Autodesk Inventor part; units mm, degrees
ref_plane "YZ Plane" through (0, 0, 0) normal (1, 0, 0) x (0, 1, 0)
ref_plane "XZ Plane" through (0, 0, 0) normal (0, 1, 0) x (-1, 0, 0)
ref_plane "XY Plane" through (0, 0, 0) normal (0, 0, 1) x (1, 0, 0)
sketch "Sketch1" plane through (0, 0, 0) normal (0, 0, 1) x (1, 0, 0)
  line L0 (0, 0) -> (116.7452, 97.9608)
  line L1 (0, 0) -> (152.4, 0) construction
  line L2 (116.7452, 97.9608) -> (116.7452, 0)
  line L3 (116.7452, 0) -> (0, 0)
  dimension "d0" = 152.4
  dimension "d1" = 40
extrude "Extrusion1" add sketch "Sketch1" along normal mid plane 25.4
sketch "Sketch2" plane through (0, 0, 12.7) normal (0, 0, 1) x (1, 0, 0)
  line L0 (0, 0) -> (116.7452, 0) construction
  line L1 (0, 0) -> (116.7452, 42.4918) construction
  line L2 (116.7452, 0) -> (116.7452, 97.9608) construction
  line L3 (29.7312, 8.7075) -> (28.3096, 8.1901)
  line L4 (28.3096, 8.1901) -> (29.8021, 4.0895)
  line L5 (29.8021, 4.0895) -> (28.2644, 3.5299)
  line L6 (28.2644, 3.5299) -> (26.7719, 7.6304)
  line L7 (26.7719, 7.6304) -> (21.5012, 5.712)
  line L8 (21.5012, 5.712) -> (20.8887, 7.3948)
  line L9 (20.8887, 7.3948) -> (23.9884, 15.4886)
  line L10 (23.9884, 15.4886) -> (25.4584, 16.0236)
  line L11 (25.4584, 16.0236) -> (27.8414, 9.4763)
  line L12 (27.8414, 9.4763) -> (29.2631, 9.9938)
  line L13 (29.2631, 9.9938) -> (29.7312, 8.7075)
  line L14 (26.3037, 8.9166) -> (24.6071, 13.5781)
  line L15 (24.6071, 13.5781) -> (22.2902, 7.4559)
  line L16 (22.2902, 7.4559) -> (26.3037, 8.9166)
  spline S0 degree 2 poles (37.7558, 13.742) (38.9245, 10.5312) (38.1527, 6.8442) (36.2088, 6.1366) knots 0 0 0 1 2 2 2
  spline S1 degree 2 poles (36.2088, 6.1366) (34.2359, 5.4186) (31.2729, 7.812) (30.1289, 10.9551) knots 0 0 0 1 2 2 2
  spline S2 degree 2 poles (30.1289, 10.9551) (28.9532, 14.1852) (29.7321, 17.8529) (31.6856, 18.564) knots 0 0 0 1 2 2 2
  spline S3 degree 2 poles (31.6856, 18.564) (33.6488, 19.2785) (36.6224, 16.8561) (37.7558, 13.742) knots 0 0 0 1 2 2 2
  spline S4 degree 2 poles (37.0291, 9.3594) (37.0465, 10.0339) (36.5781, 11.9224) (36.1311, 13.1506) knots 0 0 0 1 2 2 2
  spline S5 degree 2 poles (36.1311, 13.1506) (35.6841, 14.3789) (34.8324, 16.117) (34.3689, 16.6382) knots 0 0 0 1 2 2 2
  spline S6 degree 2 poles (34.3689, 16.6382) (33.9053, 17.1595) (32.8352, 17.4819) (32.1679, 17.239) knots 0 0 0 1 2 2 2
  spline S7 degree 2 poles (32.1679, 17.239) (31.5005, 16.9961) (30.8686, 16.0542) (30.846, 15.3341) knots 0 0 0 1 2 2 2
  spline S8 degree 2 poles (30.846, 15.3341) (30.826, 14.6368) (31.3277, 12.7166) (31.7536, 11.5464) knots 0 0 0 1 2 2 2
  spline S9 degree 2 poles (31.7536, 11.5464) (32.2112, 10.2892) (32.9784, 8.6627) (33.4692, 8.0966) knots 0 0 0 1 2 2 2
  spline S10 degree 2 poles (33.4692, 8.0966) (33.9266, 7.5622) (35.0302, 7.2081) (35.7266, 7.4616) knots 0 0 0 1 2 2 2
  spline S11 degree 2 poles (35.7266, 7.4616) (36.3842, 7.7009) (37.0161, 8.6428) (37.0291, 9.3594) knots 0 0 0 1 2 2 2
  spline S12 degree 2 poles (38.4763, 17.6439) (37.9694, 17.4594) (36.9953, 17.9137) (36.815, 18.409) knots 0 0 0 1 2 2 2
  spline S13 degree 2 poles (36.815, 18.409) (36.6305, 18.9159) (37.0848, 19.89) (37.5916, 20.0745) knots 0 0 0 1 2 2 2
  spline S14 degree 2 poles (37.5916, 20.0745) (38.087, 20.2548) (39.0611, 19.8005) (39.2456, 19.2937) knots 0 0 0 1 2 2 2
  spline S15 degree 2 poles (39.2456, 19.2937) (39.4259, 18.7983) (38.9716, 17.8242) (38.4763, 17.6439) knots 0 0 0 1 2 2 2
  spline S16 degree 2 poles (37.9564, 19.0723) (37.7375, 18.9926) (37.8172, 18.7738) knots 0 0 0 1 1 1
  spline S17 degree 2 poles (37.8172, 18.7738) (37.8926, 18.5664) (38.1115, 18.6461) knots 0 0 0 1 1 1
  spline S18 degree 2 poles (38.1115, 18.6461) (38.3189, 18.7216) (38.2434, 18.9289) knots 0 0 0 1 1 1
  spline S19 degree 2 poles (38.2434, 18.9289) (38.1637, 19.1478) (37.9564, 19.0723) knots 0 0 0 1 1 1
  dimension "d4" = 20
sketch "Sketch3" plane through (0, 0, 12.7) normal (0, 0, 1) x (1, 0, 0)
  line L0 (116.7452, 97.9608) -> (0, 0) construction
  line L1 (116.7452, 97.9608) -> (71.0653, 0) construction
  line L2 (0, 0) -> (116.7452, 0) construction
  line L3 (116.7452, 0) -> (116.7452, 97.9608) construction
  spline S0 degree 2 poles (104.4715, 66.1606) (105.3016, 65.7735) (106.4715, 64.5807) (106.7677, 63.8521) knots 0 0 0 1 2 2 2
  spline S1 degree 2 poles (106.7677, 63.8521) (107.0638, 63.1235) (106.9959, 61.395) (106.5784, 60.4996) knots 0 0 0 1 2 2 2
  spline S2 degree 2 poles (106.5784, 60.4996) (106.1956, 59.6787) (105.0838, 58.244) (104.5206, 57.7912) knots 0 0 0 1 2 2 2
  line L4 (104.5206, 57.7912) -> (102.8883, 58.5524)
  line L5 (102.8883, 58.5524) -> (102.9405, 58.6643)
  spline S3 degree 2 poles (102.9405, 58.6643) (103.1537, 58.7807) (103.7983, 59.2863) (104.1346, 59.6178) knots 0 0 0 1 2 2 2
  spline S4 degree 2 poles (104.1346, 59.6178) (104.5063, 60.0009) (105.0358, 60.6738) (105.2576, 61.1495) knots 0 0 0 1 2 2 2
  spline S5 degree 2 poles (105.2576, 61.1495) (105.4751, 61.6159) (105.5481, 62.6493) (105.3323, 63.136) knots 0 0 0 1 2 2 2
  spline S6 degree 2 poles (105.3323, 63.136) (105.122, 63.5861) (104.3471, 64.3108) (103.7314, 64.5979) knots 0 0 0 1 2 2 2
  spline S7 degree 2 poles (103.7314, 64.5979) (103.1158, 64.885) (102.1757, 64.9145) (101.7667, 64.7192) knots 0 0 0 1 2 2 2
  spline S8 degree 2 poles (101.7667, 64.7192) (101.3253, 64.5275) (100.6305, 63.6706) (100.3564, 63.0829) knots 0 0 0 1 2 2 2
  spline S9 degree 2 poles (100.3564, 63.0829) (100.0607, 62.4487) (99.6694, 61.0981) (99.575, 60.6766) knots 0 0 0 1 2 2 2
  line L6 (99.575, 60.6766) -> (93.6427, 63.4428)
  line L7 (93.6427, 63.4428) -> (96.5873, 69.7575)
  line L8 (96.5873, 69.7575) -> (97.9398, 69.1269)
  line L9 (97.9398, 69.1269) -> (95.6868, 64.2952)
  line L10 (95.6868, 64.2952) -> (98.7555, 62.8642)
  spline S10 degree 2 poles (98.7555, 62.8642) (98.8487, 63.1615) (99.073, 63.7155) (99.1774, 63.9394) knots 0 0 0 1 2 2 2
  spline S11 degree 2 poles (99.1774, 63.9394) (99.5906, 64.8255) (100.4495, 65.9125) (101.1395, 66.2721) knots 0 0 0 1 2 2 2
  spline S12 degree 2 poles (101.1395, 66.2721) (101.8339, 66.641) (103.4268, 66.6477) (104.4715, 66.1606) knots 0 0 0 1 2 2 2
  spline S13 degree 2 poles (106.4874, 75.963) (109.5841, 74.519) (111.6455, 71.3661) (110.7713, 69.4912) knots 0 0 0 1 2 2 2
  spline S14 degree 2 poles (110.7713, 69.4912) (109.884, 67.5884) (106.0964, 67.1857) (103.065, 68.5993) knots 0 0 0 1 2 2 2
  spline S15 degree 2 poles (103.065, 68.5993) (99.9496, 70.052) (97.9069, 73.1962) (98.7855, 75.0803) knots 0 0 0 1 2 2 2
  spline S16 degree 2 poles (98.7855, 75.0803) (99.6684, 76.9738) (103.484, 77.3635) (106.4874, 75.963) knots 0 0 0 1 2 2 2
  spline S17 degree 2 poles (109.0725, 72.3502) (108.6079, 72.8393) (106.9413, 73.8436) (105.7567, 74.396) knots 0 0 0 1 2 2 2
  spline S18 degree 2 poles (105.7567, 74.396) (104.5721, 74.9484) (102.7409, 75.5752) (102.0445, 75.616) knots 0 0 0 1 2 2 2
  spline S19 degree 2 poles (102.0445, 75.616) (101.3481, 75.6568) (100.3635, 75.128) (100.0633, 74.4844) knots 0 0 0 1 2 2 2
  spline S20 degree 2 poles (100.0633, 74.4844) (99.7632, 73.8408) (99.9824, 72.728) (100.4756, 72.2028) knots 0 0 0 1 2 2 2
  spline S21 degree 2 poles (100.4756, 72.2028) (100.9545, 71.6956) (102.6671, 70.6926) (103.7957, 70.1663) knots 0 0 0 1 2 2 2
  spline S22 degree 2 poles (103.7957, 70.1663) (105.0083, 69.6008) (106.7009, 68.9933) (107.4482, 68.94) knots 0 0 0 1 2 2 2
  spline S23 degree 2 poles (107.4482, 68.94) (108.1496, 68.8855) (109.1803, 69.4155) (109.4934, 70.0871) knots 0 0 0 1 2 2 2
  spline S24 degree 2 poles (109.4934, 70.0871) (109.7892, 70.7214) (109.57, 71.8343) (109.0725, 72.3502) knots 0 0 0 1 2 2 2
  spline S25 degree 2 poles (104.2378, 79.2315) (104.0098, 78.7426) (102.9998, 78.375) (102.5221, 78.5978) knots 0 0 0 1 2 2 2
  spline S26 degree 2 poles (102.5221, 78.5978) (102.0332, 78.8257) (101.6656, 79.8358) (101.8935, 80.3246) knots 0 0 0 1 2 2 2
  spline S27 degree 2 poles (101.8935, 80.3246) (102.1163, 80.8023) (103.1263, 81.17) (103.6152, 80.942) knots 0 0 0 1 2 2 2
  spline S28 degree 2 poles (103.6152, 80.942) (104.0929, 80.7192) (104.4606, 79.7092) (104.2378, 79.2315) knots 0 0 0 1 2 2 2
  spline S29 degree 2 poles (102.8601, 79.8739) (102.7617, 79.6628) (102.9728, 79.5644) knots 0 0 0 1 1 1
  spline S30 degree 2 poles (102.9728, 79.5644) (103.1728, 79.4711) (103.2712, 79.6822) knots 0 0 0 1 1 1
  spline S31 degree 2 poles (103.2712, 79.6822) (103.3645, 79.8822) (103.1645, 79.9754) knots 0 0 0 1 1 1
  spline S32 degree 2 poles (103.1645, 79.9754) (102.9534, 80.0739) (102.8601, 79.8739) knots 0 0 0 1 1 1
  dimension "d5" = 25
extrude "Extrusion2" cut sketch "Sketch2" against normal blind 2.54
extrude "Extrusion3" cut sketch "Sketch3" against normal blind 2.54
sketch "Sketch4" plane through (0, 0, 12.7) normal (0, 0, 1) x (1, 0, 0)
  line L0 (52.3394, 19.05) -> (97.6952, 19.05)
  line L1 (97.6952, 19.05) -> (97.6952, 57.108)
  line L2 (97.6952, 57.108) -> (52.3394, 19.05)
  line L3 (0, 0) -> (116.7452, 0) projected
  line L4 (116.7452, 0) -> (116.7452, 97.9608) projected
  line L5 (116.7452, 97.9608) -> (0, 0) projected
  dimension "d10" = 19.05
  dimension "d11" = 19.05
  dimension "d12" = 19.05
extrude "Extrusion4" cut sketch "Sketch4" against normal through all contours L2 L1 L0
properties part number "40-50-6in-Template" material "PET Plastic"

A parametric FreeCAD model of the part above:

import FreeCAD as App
import Part
import Sketcher
Q = App.Units.Quantity

doc = App.newDocument("Part")
body = doc.addObject("PartDesign::Body", "Body")

# Sketch on XY plane
sketch1 = body.newObject("Sketcher::SketchObject", "Sketch")
sketch1.AttachmentSupport = (doc.getObject("XY_Plane"), [""])
sketch1.MapMode = "FlatFace"
sketch1.addGeometry([
    Part.LineSegment(App.Vector(117, 98, 0), App.Vector(0, 0, 0)),
    Part.LineSegment(App.Vector(0, 0, 0), App.Vector(117, 0, 0)),
    Part.LineSegment(App.Vector(117, 0, 0), App.Vector(117, 98, 0)),
], False)
sketch1.addConstraint([
    Sketcher.Constraint("Coincident", 0, 2, 1, 1),
    Sketcher.Constraint("Coincident", 1, 2, 2, 1),
    Sketcher.Constraint("Coincident", 2, 2, 0, 1),
    Sketcher.Constraint("Horizontal", 1),
    Sketcher.Constraint("Vertical", 2),
    Sketcher.Constraint("Coincident", 0, 2, -1, 1),
    Sketcher.Constraint("Distance", 0, Q("6 in")),
    Sketcher.Constraint("Angle", 0, Q("-140 deg")),
])
pad1 = body.newObject("PartDesign::Pad", "Pad")
pad1.Profile = sketch1
pad1.Length = Q("1 in")
pad1.Midplane = True

# Sketch on XY plane
sketch2 = body.newObject("Sketcher::SketchObject", "Sketch001")
sketch2.AttachmentSupport = (doc.getObject("XY_Plane"), [""])
sketch2.MapMode = "FlatFace"
sketch2.AttachmentOffset = App.Placement(App.Vector(0, 0, 0.5 * 25.4), App.Rotation())
sketch2.addGeometry([
    Part.LineSegment(App.Vector(28.3096, 8.1901, 0), App.Vector(29.7312, 8.7075, 0)),  # 0
    Part.LineSegment(App.Vector(29.7312, 8.7075, 0), App.Vector(29.2631, 9.9938, 0)),  # 1
    Part.LineSegment(App.Vector(29.2631, 9.9938, 0), App.Vector(27.8414, 9.4763, 0)),  # 2
    Part.LineSegment(App.Vector(27.8414, 9.4763, 0), App.Vector(25.4584, 16.0236, 0)),  # 3
    Part.LineSegment(App.Vector(25.4584, 16.0236, 0), App.Vector(23.9884, 15.4886, 0)),  # 4
    Part.LineSegment(App.Vector(23.9884, 15.4886, 0), App.Vector(20.8887, 7.3948, 0)),  # 5
    Part.LineSegment(App.Vector(20.8887, 7.3948, 0), App.Vector(21.5012, 5.712, 0)),  # 6
    Part.LineSegment(App.Vector(21.5012, 5.712, 0), App.Vector(26.7719, 7.6304, 0)),  # 7
    Part.LineSegment(App.Vector(26.7719, 7.6304, 0), App.Vector(28.2644, 3.5299, 0)),  # 8
    Part.LineSegment(App.Vector(28.2644, 3.5299, 0), App.Vector(29.8021, 4.0895, 0)),  # 9
    Part.LineSegment(App.Vector(29.8021, 4.0895, 0), App.Vector(28.3096, 8.1901, 0)),  # 10
    Part.LineSegment(App.Vector(24.6071, 13.5781, 0), App.Vector(26.3037, 8.9166, 0)),  # 11
    Part.LineSegment(App.Vector(26.3037, 8.9166, 0), App.Vector(22.2902, 7.4559, 0)),  # 12
    Part.LineSegment(App.Vector(22.2902, 7.4559, 0), App.Vector(24.6071, 13.5781, 0)),  # 13
    Part.BSplineCurve([App.Vector(37.7558, 13.742, 0), App.Vector(38.9245, 10.5312, 0), App.Vector(38.1527, 6.8442, 0), App.Vector(36.2088, 6.1366, 0)], [3, 1, 3], [0, 1, 2], False, 2, [1, 1, 1, 1], False),  # 14
    Part.BSplineCurve([App.Vector(31.6856, 18.564, 0), App.Vector(33.6488, 19.2785, 0), App.Vector(36.6224, 16.8561, 0), App.Vector(37.7558, 13.742, 0)], [3, 1, 3], [0, 1, 2], False, 2, [1, 1, 1, 1], False),  # 15
    Part.BSplineCurve([App.Vector(30.1289, 10.9551, 0), App.Vector(28.9532, 14.1852, 0), App.Vector(29.7321, 17.8529, 0), App.Vector(31.6856, 18.564, 0)], [3, 1, 3], [0, 1, 2], False, 2, [1, 1, 1, 1], False),  # 16
    Part.BSplineCurve([App.Vector(36.2088, 6.1366, 0), App.Vector(34.2359, 5.4186, 0), App.Vector(31.2729, 7.812, 0), App.Vector(30.1289, 10.9551, 0)], [3, 1, 3], [0, 1, 2], False, 2, [1, 1, 1, 1], False),  # 17
    Part.BSplineCurve([App.Vector(37.0291, 9.3594, 0), App.Vector(37.0465, 10.0339, 0), App.Vector(36.5781, 11.9224, 0), App.Vector(36.1311, 13.1506, 0)], [3, 1, 3], [0, 1, 2], False, 2, [1, 1, 1, 1], False),  # 18
    Part.BSplineCurve([App.Vector(35.7266, 7.4616, 0), App.Vector(36.3842, 7.7009, 0), App.Vector(37.0161, 8.6428, 0), App.Vector(37.0291, 9.3594, 0)], [3, 1, 3], [0, 1, 2], False, 2, [1, 1, 1, 1], False),  # 19
    Part.BSplineCurve([App.Vector(33.4692, 8.0966, 0), App.Vector(33.9266, 7.5622, 0), App.Vector(35.0302, 7.2081, 0), App.Vector(35.7266, 7.4616, 0)], [3, 1, 3], [0, 1, 2], False, 2, [1, 1, 1, 1], False),  # 20
    Part.BSplineCurve([App.Vector(31.7536, 11.5464, 0), App.Vector(32.2112, 10.2892, 0), App.Vector(32.9784, 8.6627, 0), App.Vector(33.4692, 8.0966, 0)], [3, 1, 3], [0, 1, 2], False, 2, [1, 1, 1, 1], False),  # 21
    Part.BSplineCurve([App.Vector(30.846, 15.3341, 0), App.Vector(30.826, 14.6368, 0), App.Vector(31.3277, 12.7166, 0), App.Vector(31.7536, 11.5464, 0)], [3, 1, 3], [0, 1, 2], False, 2, [1, 1, 1, 1], False),  # 22
    Part.BSplineCurve([App.Vector(32.1679, 17.239, 0), App.Vector(31.5005, 16.9961, 0), App.Vector(30.8686, 16.0542, 0), App.Vector(30.846, 15.3341, 0)], [3, 1, 3], [0, 1, 2], False, 2, [1, 1, 1, 1], False),  # 23
    Part.BSplineCurve([App.Vector(34.3689, 16.6382, 0), App.Vector(33.9053, 17.1595, 0), App.Vector(32.8352, 17.4819, 0), App.Vector(32.1679, 17.239, 0)], [3, 1, 3], [0, 1, 2], False, 2, [1, 1, 1, 1], False),  # 24
    Part.BSplineCurve([App.Vector(36.1311, 13.1506, 0), App.Vector(35.6841, 14.3789, 0), App.Vector(34.8324, 16.117, 0), App.Vector(34.3689, 16.6382, 0)], [3, 1, 3], [0, 1, 2], False, 2, [1, 1, 1, 1], False),  # 25
    Part.BSplineCurve([App.Vector(38.4763, 17.6439, 0), App.Vector(37.9694, 17.4594, 0), App.Vector(36.9953, 17.9137, 0), App.Vector(36.815, 18.409, 0)], [3, 1, 3], [0, 1, 2], False, 2, [1, 1, 1, 1], False),  # 26
    Part.BSplineCurve([App.Vector(39.2456, 19.2937, 0), App.Vector(39.4259, 18.7983, 0), App.Vector(38.9716, 17.8242, 0), App.Vector(38.4763, 17.6439, 0)], [3, 1, 3], [0, 1, 2], False, 2, [1, 1, 1, 1], False),  # 27
    Part.BSplineCurve([App.Vector(37.5916, 20.0745, 0), App.Vector(38.087, 20.2548, 0), App.Vector(39.0611, 19.8005, 0), App.Vector(39.2456, 19.2937, 0)], [3, 1, 3], [0, 1, 2], False, 2, [1, 1, 1, 1], False),  # 28
    Part.BSplineCurve([App.Vector(36.815, 18.409, 0), App.Vector(36.6305, 18.9159, 0), App.Vector(37.0848, 19.89, 0), App.Vector(37.5916, 20.0745, 0)], [3, 1, 3], [0, 1, 2], False, 2, [1, 1, 1, 1], False),  # 29
    Part.BSplineCurve([App.Vector(37.9564, 19.0723, 0), App.Vector(37.7375, 18.9926, 0), App.Vector(37.8172, 18.7738, 0)], [3, 3], [0, 1], False, 2, [1, 1, 1], False),  # 30
    Part.BSplineCurve([App.Vector(38.2434, 18.9289, 0), App.Vector(38.1637, 19.1478, 0), App.Vector(37.9564, 19.0723, 0)], [3, 3], [0, 1], False, 2, [1, 1, 1], False),  # 31
    Part.BSplineCurve([App.Vector(38.1115, 18.6461, 0), App.Vector(38.3189, 18.7216, 0), App.Vector(38.2434, 18.9289, 0)], [3, 3], [0, 1], False, 2, [1, 1, 1], False),  # 32
    Part.BSplineCurve([App.Vector(37.8172, 18.7738, 0), App.Vector(37.8926, 18.5664, 0), App.Vector(38.1115, 18.6461, 0)], [3, 3], [0, 1], False, 2, [1, 1, 1], False),  # 33
], False)
sketch2.addConstraint([
    Sketcher.Constraint("Block", 14),
    Sketcher.Constraint("Block", 15),
    Sketcher.Constraint("Block", 16),
    Sketcher.Constraint("Block", 17),
    Sketcher.Constraint("Block", 18),
    Sketcher.Constraint("Block", 19),
    Sketcher.Constraint("Block", 20),
    Sketcher.Constraint("Block", 21),
    Sketcher.Constraint("Block", 22),
    Sketcher.Constraint("Block", 23),
    Sketcher.Constraint("Block", 24),
    Sketcher.Constraint("Block", 25),
    Sketcher.Constraint("Block", 26),
    Sketcher.Constraint("Block", 27),
    Sketcher.Constraint("Block", 28),
    Sketcher.Constraint("Block", 29),
    Sketcher.Constraint("Block", 30),
    Sketcher.Constraint("Block", 31),
    Sketcher.Constraint("Block", 32),
    Sketcher.Constraint("Block", 33),
    Sketcher.Constraint("Coincident", 0, 2, 1, 1),
    Sketcher.Constraint("Coincident", 1, 2, 2, 1),
    Sketcher.Constraint("Coincident", 2, 2, 3, 1),
    Sketcher.Constraint("Coincident", 3, 2, 4, 1),
    Sketcher.Constraint("Coincident", 4, 2, 5, 1),
    Sketcher.Constraint("Coincident", 5, 2, 6, 1),
    Sketcher.Constraint("Coincident", 6, 2, 7, 1),
    Sketcher.Constraint("Coincident", 7, 2, 8, 1),
    Sketcher.Constraint("Coincident", 8, 2, 9, 1),
    Sketcher.Constraint("Coincident", 9, 2, 10, 1),
    Sketcher.Constraint("Coincident", 10, 2, 0, 1),
    Sketcher.Constraint("Coincident", 11, 2, 12, 1),
    Sketcher.Constraint("Coincident", 12, 2, 13, 1),
    Sketcher.Constraint("Coincident", 13, 2, 11, 1),
    Sketcher.Constraint("Perpendicular", 0, 1),
    Sketcher.Constraint("Perpendicular", 1, 2),
    Sketcher.Constraint("Perpendicular", 2, 3),
    Sketcher.Constraint("Perpendicular", 3, 4),
    Sketcher.Constraint("Perpendicular", 4, 6),
    Sketcher.Constraint("Perpendicular", 6, 7),
    Sketcher.Constraint("Perpendicular", 7, 8),
    Sketcher.Constraint("Perpendicular", 8, 9),
    Sketcher.Constraint("Perpendicular", 9, 10),
    Sketcher.Constraint("Parallel", 10, 11),
    Sketcher.Constraint("Perpendicular", 11, 12),
    Sketcher.Constraint("Equal", 0, 2),
    Sketcher.Constraint("Equal", 8, 10),
    Sketcher.Constraint("Angle", 7, Q("20.0002 deg")),
    Sketcher.Constraint("DistanceX", -1, 1, 7, 2, Q("1.054 in")),
    Sketcher.Constraint("DistanceY", -1, 1, 9, 2, Q("0.161 in")),
    Sketcher.Constraint("DistanceY", 10, 2, 1, 2, Q("0.071 in")),
    Sketcher.Constraint("DistanceX", 12, 2, 11, 2, Q("0.158 in")),
    Sketcher.Constraint("Distance", 1, Q("0.0539 in")),
    Sketcher.Constraint("Distance", 3, Q("0.2743 in")),
    Sketcher.Constraint("Distance", 6, Q("0.0705 in")),
    Sketcher.Constraint("Distance", 8, Q("0.1718 in")),
    Sketcher.Constraint("Distance", 11, Q("0.1953 in")),
    Sketcher.Constraint("DistanceX", -1, 1, 1, 2, Q("1.1521 in")),
    Sketcher.Constraint("DistanceX", -1, 1, 5, 2, Q("0.8224 in")),
    Sketcher.Constraint("DistanceX", 4, 2, 2, 2, Q("0.1517 in")),
    Sketcher.Constraint("DistanceY", 10, 2, 11, 2, Q("0.0286 in")),
    Sketcher.Constraint("DistanceX", 11, 2, 1, 2, Q("0.1165 in")),
])
pocket1 = body.newObject("PartDesign::Pocket", "Pocket")
pocket1.Profile = sketch2
pocket1.Length = Q("0.1 in")

# Sketch on XY plane
sketch3 = body.newObject("Sketcher::SketchObject", "Sketch002")
sketch3.AttachmentSupport = (doc.getObject("XY_Plane"), [""])
sketch3.MapMode = "FlatFace"
sketch3.AttachmentOffset = App.Placement(App.Vector(0, 0, 0.5 * 25.4), App.Rotation())
sketch3.addGeometry([
    Part.BSplineCurve([App.Vector(104.4715, 66.1606, 0), App.Vector(105.3016, 65.7735, 0), App.Vector(106.4715, 64.5807, 0), App.Vector(106.7677, 63.8521, 0)], [3, 1, 3], [0, 1, 2], False, 2, [1, 1, 1, 1], False),  # 0
    Part.BSplineCurve([App.Vector(101.1395, 66.2721, 0), App.Vector(101.8339, 66.641, 0), App.Vector(103.4268, 66.6477, 0), App.Vector(104.4715, 66.1606, 0)], [3, 1, 3], [0, 1, 2], False, 2, [1, 1, 1, 1], False),  # 1
    Part.BSplineCurve([App.Vector(99.1774, 63.9394, 0), App.Vector(99.5906, 64.8255, 0), App.Vector(100.4495, 65.9125, 0), App.Vector(101.1395, 66.2721, 0)], [3, 1, 3], [0, 1, 2], False, 2, [1, 1, 1, 1], False),  # 2
    Part.BSplineCurve([App.Vector(98.7555, 62.8642, 0), App.Vector(98.8487, 63.1615, 0), App.Vector(99.073, 63.7155, 0), App.Vector(99.1774, 63.9394, 0)], [3, 1, 3], [0, 1, 2], False, 2, [1, 1, 1, 1], False),  # 3
    Part.LineSegment(App.Vector(98.7555, 62.8642, 0), App.Vector(95.6868, 64.2952, 0)),  # 4
    Part.LineSegment(App.Vector(95.6868, 64.2952, 0), App.Vector(97.9398, 69.1269, 0)),  # 5
    Part.LineSegment(App.Vector(97.9398, 69.1269, 0), App.Vector(96.5873, 69.7575, 0)),  # 6
    Part.LineSegment(App.Vector(96.5873, 69.7575, 0), App.Vector(93.6427, 63.4428, 0)),  # 7
    Part.LineSegment(App.Vector(93.6427, 63.4428, 0), App.Vector(99.575, 60.6766, 0)),  # 8
    Part.BSplineCurve([App.Vector(100.3564, 63.0829, 0), App.Vector(100.0607, 62.4487, 0), App.Vector(99.6694, 61.0981, 0), App.Vector(99.575, 60.6766, 0)], [3, 1, 3], [0, 1, 2], False, 2, [1, 1, 1, 1], False),  # 9
    Part.BSplineCurve([App.Vector(101.7667, 64.7192, 0), App.Vector(101.3253, 64.5275, 0), App.Vector(100.6305, 63.6706, 0), App.Vector(100.3564, 63.0829, 0)], [3, 1, 3], [0, 1, 2], False, 2, [1, 1, 1, 1], False),  # 10
    Part.BSplineCurve([App.Vector(103.7314, 64.5979, 0), App.Vector(103.1158, 64.885, 0), App.Vector(102.1757, 64.9145, 0), App.Vector(101.7667, 64.7192, 0)], [3, 1, 3], [0, 1, 2], False, 2, [1, 1, 1, 1], False),  # 11
    Part.BSplineCurve([App.Vector(105.3323, 63.136, 0), App.Vector(105.122, 63.5861, 0), App.Vector(104.3471, 64.3108, 0), App.Vector(103.7314, 64.5979, 0)], [3, 1, 3], [0, 1, 2], False, 2, [1, 1, 1, 1], False),  # 12
    Part.BSplineCurve([App.Vector(105.2576, 61.1495, 0), App.Vector(105.4751, 61.6159, 0), App.Vector(105.5481, 62.6493, 0), App.Vector(105.3323, 63.136, 0)], [3, 1, 3], [0, 1, 2], False, 2, [1, 1, 1, 1], False),  # 13
    Part.BSplineCurve([App.Vector(104.1346, 59.6178, 0), App.Vector(104.5063, 60.0009, 0), App.Vector(105.0358, 60.6738, 0), App.Vector(105.2576, 61.1495, 0)], [3, 1, 3], [0, 1, 2], False, 2, [1, 1, 1, 1], False),  # 14
    Part.BSplineCurve([App.Vector(102.9405, 58.6643, 0), App.Vector(103.1537, 58.7807, 0), App.Vector(103.7983, 59.2863, 0), App.Vector(104.1346, 59.6178, 0)], [3, 1, 3], [0, 1, 2], False, 2, [1, 1, 1, 1], False),  # 15
    Part.LineSegment(App.Vector(102.9405, 58.6643, 0), App.Vector(102.8883, 58.5524, 0)),  # 16
    Part.LineSegment(App.Vector(102.8883, 58.5524, 0), App.Vector(104.5206, 57.7912, 0)),  # 17
    Part.BSplineCurve([App.Vector(106.5784, 60.4996, 0), App.Vector(106.1956, 59.6787, 0), App.Vector(105.0838, 58.244, 0), App.Vector(104.5206, 57.7912, 0)], [3, 1, 3], [0, 1, 2], False, 2, [1, 1, 1, 1], False),  # 18
    Part.BSplineCurve([App.Vector(106.7677, 63.8521, 0), App.Vector(107.0638, 63.1235, 0), App.Vector(106.9959, 61.395, 0), App.Vector(106.5784, 60.4996, 0)], [3, 1, 3], [0, 1, 2], False, 2, [1, 1, 1, 1], False),  # 19
    Part.BSplineCurve([App.Vector(106.4874, 75.963, 0), App.Vector(109.5841, 74.519, 0), App.Vector(111.6455, 71.3661, 0), App.Vector(110.7713, 69.4912, 0)], [3, 1, 3], [0, 1, 2], False, 2, [1, 1, 1, 1], False),  # 20
    Part.BSplineCurve([App.Vector(98.7855, 75.0803, 0), App.Vector(99.6684, 76.9738, 0), App.Vector(103.484, 77.3635, 0), App.Vector(106.4874, 75.963, 0)], [3, 1, 3], [0, 1, 2], False, 2, [1, 1, 1, 1], False),  # 21
    Part.BSplineCurve([App.Vector(103.065, 68.5993, 0), App.Vector(99.9496, 70.052, 0), App.Vector(97.9069, 73.1962, 0), App.Vector(98.7855, 75.0803, 0)], [3, 1, 3], [0, 1, 2], False, 2, [1, 1, 1, 1], False),  # 22
    Part.BSplineCurve([App.Vector(110.7713, 69.4912, 0), App.Vector(109.884, 67.5884, 0), App.Vector(106.0964, 67.1857, 0), App.Vector(103.065, 68.5993, 0)], [3, 1, 3], [0, 1, 2], False, 2, [1, 1, 1, 1], False),  # 23
    Part.BSplineCurve([App.Vector(109.0725, 72.3502, 0), App.Vector(108.6079, 72.8393, 0), App.Vector(106.9413, 73.8436, 0), App.Vector(105.7567, 74.396, 0)], [3, 1, 3], [0, 1, 2], False, 2, [1, 1, 1, 1], False),  # 24
    Part.BSplineCurve([App.Vector(109.4934, 70.0871, 0), App.Vector(109.7892, 70.7214, 0), App.Vector(109.57, 71.8343, 0), App.Vector(109.0725, 72.3502, 0)], [3, 1, 3], [0, 1, 2], False, 2, [1, 1, 1, 1], False),  # 25
    Part.BSplineCurve([App.Vector(107.4482, 68.94, 0), App.Vector(108.1496, 68.8855, 0), App.Vector(109.1803, 69.4155, 0), App.Vector(109.4934, 70.0871, 0)], [3, 1, 3], [0, 1, 2], False, 2, [1, 1, 1, 1], False),  # 26
    Part.BSplineCurve([App.Vector(103.7957, 70.1663, 0), App.Vector(105.0083, 69.6008, 0), App.Vector(106.7009, 68.9933, 0), App.Vector(107.4482, 68.94, 0)], [3, 1, 3], [0, 1, 2], False, 2, [1, 1, 1, 1], False),  # 27
    Part.BSplineCurve([App.Vector(100.4756, 72.2028, 0), App.Vector(100.9545, 71.6956, 0), App.Vector(102.6671, 70.6926, 0), App.Vector(103.7957, 70.1663, 0)], [3, 1, 3], [0, 1, 2], False, 2, [1, 1, 1, 1], False),  # 28
    Part.BSplineCurve([App.Vector(100.0633, 74.4844, 0), App.Vector(99.7632, 73.8408, 0), App.Vector(99.9824, 72.728, 0), App.Vector(100.4756, 72.2028, 0)], [3, 1, 3], [0, 1, 2], False, 2, [1, 1, 1, 1], False),  # 29
    Part.BSplineCurve([App.Vector(102.0445, 75.616, 0), App.Vector(101.3481, 75.6568, 0), App.Vector(100.3635, 75.128, 0), App.Vector(100.0633, 74.4844, 0)], [3, 1, 3], [0, 1, 2], False, 2, [1, 1, 1, 1], False),  # 30
    Part.BSplineCurve([App.Vector(105.7567, 74.396, 0), App.Vector(104.5721, 74.9484, 0), App.Vector(102.7409, 75.5752, 0), App.Vector(102.0445, 75.616, 0)], [3, 1, 3], [0, 1, 2], False, 2, [1, 1, 1, 1], False),  # 31
    Part.BSplineCurve([App.Vector(104.2378, 79.2315, 0), App.Vector(104.0098, 78.7426, 0), App.Vector(102.9998, 78.375, 0), App.Vector(102.5221, 78.5978, 0)], [3, 1, 3], [0, 1, 2], False, 2, [1, 1, 1, 1], False),  # 32
    Part.BSplineCurve([App.Vector(103.6152, 80.942, 0), App.Vector(104.0929, 80.7192, 0), App.Vector(104.4606, 79.7092, 0), App.Vector(104.2378, 79.2315, 0)], [3, 1, 3], [0, 1, 2], False, 2, [1, 1, 1, 1], False),  # 33
    Part.BSplineCurve([App.Vector(101.8935, 80.3246, 0), App.Vector(102.1163, 80.8023, 0), App.Vector(103.1263, 81.17, 0), App.Vector(103.6152, 80.942, 0)], [3, 1, 3], [0, 1, 2], False, 2, [1, 1, 1, 1], False),  # 34
    Part.BSplineCurve([App.Vector(102.5221, 78.5978, 0), App.Vector(102.0332, 78.8257, 0), App.Vector(101.6656, 79.8358, 0), App.Vector(101.8935, 80.3246, 0)], [3, 1, 3], [0, 1, 2], False, 2, [1, 1, 1, 1], False),  # 35
    Part.BSplineCurve([App.Vector(102.8601, 79.8739, 0), App.Vector(102.7617, 79.6628, 0), App.Vector(102.9728, 79.5644, 0)], [3, 3], [0, 1], False, 2, [1, 1, 1], False),  # 36
    Part.BSplineCurve([App.Vector(103.1645, 79.9754, 0), App.Vector(102.9534, 80.0739, 0), App.Vector(102.8601, 79.8739, 0)], [3, 3], [0, 1], False, 2, [1, 1, 1], False),  # 37
    Part.BSplineCurve([App.Vector(103.2712, 79.6822, 0), App.Vector(103.3645, 79.8822, 0), App.Vector(103.1645, 79.9754, 0)], [3, 3], [0, 1], False, 2, [1, 1, 1], False),  # 38
    Part.BSplineCurve([App.Vector(102.9728, 79.5644, 0), App.Vector(103.1728, 79.4711, 0), App.Vector(103.2712, 79.6822, 0)], [3, 3], [0, 1], False, 2, [1, 1, 1], False),  # 39
], False)
sketch3.addConstraint([
    Sketcher.Constraint("Block", 0),
    Sketcher.Constraint("Block", 1),
    Sketcher.Constraint("Block", 2),
    Sketcher.Constraint("Block", 3),
    Sketcher.Constraint("Block", 9),
    Sketcher.Constraint("Block", 10),
    Sketcher.Constraint("Block", 11),
    Sketcher.Constraint("Block", 12),
    Sketcher.Constraint("Block", 13),
    Sketcher.Constraint("Block", 14),
    Sketcher.Constraint("Block", 15),
    Sketcher.Constraint("Block", 18),
    Sketcher.Constraint("Block", 19),
    Sketcher.Constraint("Block", 20),
    Sketcher.Constraint("Block", 21),
    Sketcher.Constraint("Block", 22),
    Sketcher.Constraint("Block", 23),
    Sketcher.Constraint("Block", 24),
    Sketcher.Constraint("Block", 25),
    Sketcher.Constraint("Block", 26),
    Sketcher.Constraint("Block", 27),
    Sketcher.Constraint("Block", 28),
    Sketcher.Constraint("Block", 29),
    Sketcher.Constraint("Block", 30),
    Sketcher.Constraint("Block", 31),
    Sketcher.Constraint("Block", 32),
    Sketcher.Constraint("Block", 33),
    Sketcher.Constraint("Block", 34),
    Sketcher.Constraint("Block", 35),
    Sketcher.Constraint("Block", 36),
    Sketcher.Constraint("Block", 37),
    Sketcher.Constraint("Block", 38),
    Sketcher.Constraint("Block", 39),
    Sketcher.Constraint("Coincident", 3, 1, 4, 1),
    Sketcher.Constraint("Coincident", 4, 2, 5, 1),
    Sketcher.Constraint("Coincident", 5, 2, 6, 1),
    Sketcher.Constraint("Coincident", 6, 2, 7, 1),
    Sketcher.Constraint("Coincident", 7, 2, 8, 1),
    Sketcher.Constraint("Coincident", 8, 2, 9, 2),
    Sketcher.Constraint("Coincident", 15, 1, 16, 1),
    Sketcher.Constraint("Coincident", 16, 2, 17, 1),
    Sketcher.Constraint("Coincident", 17, 2, 18, 2),
    Sketcher.Constraint("DistanceX", 7, 2, 16, 2, Q("0.364 in")),
    Sketcher.Constraint("Distance", 4, Q("0.1333 in")),
    Sketcher.Constraint("Distance", 5, Q("0.2099 in")),
    Sketcher.Constraint("Distance", 7, Q("0.2743 in")),
    Sketcher.Constraint("Distance", 8, Q("0.2577 in")),
    Sketcher.Constraint("Distance", 17, Q("0.0709 in")),
    Sketcher.Constraint("DistanceX", -1, 1, 4, 2, Q("3.7672 in")),
    Sketcher.Constraint("DistanceX", -1, 1, 5, 2, Q("3.8559 in")),
    Sketcher.Constraint("DistanceY", 7, 2, 6, 2, Q("0.2486 in")),
    Sketcher.Constraint("DistanceY", 8, 2, 7, 2, Q("0.1089 in")),
])
pocket2 = body.newObject("PartDesign::Pocket", "Pocket001")
pocket2.Profile = sketch3
pocket2.Length = Q("0.1 in")

# Sketch on XY plane
sketch4 = body.newObject("Sketcher::SketchObject", "Sketch003")
sketch4.AttachmentSupport = (doc.getObject("XY_Plane"), [""])
sketch4.MapMode = "FlatFace"
sketch4.AttachmentOffset = App.Placement(App.Vector(0, 0, 0.5 * 25.4), App.Rotation())
sketch4.addGeometry([
    Part.LineSegment(App.Vector(98, 57, 0), App.Vector(52, 19, 0)),
    Part.LineSegment(App.Vector(52, 19, 0), App.Vector(98, 19, 0)),
    Part.LineSegment(App.Vector(98, 19, 0), App.Vector(98, 57, 0)),
], False)
sketch4.addConstraint([
    Sketcher.Constraint("Coincident", 0, 2, 1, 1),
    Sketcher.Constraint("Coincident", 1, 2, 2, 1),
    Sketcher.Constraint("Coincident", 2, 2, 0, 1),
    Sketcher.Constraint("Horizontal", 1),
    Sketcher.Constraint("Vertical", 2),
    Sketcher.Constraint("DistanceY", -1, 1, 0, 2, Q("0.75 in")),
    Sketcher.Constraint("Angle", 0, Q("-140 deg")),
    Sketcher.Constraint("DistanceX", 1, 1, 1, 2, Q("45.3558 mm")),
    Sketcher.Constraint("DistanceX", -1, 1, 0, 2, Q("2.0606 in")),
])
pocket3 = body.newObject("PartDesign::Pocket", "Pocket002")
pocket3.Profile = sketch4
pocket3.Type = "ThroughAll"

doc.recompute()
